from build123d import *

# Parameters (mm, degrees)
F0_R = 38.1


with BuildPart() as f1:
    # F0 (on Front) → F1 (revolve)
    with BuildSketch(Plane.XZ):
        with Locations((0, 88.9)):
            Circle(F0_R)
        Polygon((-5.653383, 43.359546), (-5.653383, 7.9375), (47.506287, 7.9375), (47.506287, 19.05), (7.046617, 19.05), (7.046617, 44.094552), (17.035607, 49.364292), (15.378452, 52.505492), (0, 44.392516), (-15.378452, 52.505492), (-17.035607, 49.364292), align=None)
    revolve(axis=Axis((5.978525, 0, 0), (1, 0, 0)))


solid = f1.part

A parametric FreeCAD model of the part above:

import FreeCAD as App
import Part
import Sketcher
from FreeCAD import Vector
Q = App.Units.Quantity

doc = App.newDocument("Part")
body = doc.addObject("PartDesign::Body", "Body")
body.AllowCompound = True

sketch1 = doc.addObject("Sketcher::SketchObject", "Sketch")
body.addObject(sketch1)
sketch1.AttachmentSupport = (doc.XZ_Plane, [""])
sketch1.MapMode = "FlatFace"
sketch1.addGeometry(Part.Circle(Vector(0, 88.9, 0), Vector(0, 0, 1), 38.1), False)
sketch1.addGeometry(Part.LineSegment(Vector(-5.7, 43.4, 0), Vector(-5.7, 7.9, 0)), False)
sketch1.addGeometry(Part.LineSegment(Vector(-5.7, 7.9, 0), Vector(47.5, 7.9, 0)), False)
sketch1.addGeometry(Part.LineSegment(Vector(47.5, 7.9, 0), Vector(47.5, 19.1, 0)), False)
sketch1.addGeometry(Part.LineSegment(Vector(47.5, 19.1, 0), Vector(7, 19.1, 0)), False)
sketch1.addGeometry(Part.LineSegment(Vector(7, 19.1, 0), Vector(7, 44.1, 0)), False)
sketch1.addGeometry(Part.LineSegment(Vector(7, 44.1, 0), Vector(17, 49.4, 0)), False)
sketch1.addGeometry(Part.LineSegment(Vector(17, 49.4, 0), Vector(15.4, 52.5, 0)), False)
sketch1.addGeometry(Part.LineSegment(Vector(15.4, 52.5, 0), Vector(0, 44.4, 0)), False)
sketch1.addGeometry(Part.LineSegment(Vector(0, 44.4, 0), Vector(-15.4, 52.5, 0)), False)
sketch1.addGeometry(Part.LineSegment(Vector(-15.4, 52.5, 0), Vector(-17, 49.4, 0)), False)
sketch1.addGeometry(Part.LineSegment(Vector(-17, 49.4, 0), Vector(-5.7, 43.4, 0)), False)
sketch1.addConstraint(Sketcher.Constraint("Coincident", 1, 2, 2, 1))
sketch1.addConstraint(Sketcher.Constraint("Coincident", 2, 2, 3, 1))
sketch1.addConstraint(Sketcher.Constraint("Coincident", 3, 2, 4, 1))
sketch1.addConstraint(Sketcher.Constraint("Coincident", 4, 2, 5, 1))
sketch1.addConstraint(Sketcher.Constraint("Coincident", 5, 2, 6, 1))
sketch1.addConstraint(Sketcher.Constraint("Coincident", 6, 2, 7, 1))
sketch1.addConstraint(Sketcher.Constraint("Coincident", 7, 2, 8, 1))
sketch1.addConstraint(Sketcher.Constraint("Coincident", 8, 2, 9, 1))
sketch1.addConstraint(Sketcher.Constraint("Coincident", 9, 2, 10, 1))
sketch1.addConstraint(Sketcher.Constraint("Coincident", 10, 2, 11, 1))
sketch1.addConstraint(Sketcher.Constraint("Coincident", 11, 2, 1, 1))
sketch1.addConstraint(Sketcher.Constraint("Vertical", 1))
sketch1.addConstraint(Sketcher.Constraint("Horizontal", 2))
sketch1.addConstraint(Sketcher.Constraint("Vertical", 3))
sketch1.addConstraint(Sketcher.Constraint("Horizontal", 4))
sketch1.addConstraint(Sketcher.Constraint("Vertical", 5))
sketch1.addConstraint(Sketcher.Constraint("Symmetric", 7, 2, 9, 2, -2))
sketch1.addConstraint(Sketcher.Constraint("Symmetric", 6, 2, 10, 2, -2))
sketch1.addConstraint(Sketcher.Constraint("PointOnObject", 0, 3, -2))
sketch1.addConstraint(Sketcher.Constraint("PointOnObject", 8, 2, -2))
sketch1.addConstraint(Sketcher.Constraint("Perpendicular", 6, 7))
sketch1.addConstraint(Sketcher.Constraint("Perpendicular", 7, 8))
sketch1.addConstraint(Sketcher.Constraint("Perpendicular", 10, 11))
sketch1.addConstraint(Sketcher.Constraint("Diameter", 0, Q("3 in")))
sketch1.addConstraint(Sketcher.Constraint("DistanceY", -1, 1, 0, 3, Q("3.5 in")))
sketch1.addConstraint(Sketcher.Constraint("DistanceX", 1, 2, 4, 2, Q("0.5 in")))
sketch1.addConstraint(Sketcher.Constraint("DistanceY", 3, 1, 3, 2, Q("0.4375 in")))
sketch1.addConstraint(Sketcher.Constraint("DistanceY", -1, 1, 3, 2, Q("0.75 in")))
sketch1.addConstraint(Sketcher.Constraint("DistanceX", 2, 1, 2, 2, 53.15967))
sketch1.addConstraint(Sketcher.Constraint("DistanceY", 5, 1, 5, 2, 25.044552))
sketch1.addConstraint(Sketcher.Constraint("DistanceY", 6, 2, 7, 2, 3.1412))
sketch1.addConstraint(Sketcher.Constraint("Distance", 7, 3.551521))
sketch1.addConstraint(Sketcher.Constraint("Distance", 8, 17.38727))
sketch1.addConstraint(Sketcher.Constraint("DistanceY", 1, 2, 1, 1, 35.422046))
revolution = doc.addObject("PartDesign::Revolution", "Revolution")
body.addObject(revolution)
revolution.Profile = sketch1
revolution.ReferenceAxis = (sketch1, ["H_Axis"])
revolution.Angle = 360

doc.recompute()
